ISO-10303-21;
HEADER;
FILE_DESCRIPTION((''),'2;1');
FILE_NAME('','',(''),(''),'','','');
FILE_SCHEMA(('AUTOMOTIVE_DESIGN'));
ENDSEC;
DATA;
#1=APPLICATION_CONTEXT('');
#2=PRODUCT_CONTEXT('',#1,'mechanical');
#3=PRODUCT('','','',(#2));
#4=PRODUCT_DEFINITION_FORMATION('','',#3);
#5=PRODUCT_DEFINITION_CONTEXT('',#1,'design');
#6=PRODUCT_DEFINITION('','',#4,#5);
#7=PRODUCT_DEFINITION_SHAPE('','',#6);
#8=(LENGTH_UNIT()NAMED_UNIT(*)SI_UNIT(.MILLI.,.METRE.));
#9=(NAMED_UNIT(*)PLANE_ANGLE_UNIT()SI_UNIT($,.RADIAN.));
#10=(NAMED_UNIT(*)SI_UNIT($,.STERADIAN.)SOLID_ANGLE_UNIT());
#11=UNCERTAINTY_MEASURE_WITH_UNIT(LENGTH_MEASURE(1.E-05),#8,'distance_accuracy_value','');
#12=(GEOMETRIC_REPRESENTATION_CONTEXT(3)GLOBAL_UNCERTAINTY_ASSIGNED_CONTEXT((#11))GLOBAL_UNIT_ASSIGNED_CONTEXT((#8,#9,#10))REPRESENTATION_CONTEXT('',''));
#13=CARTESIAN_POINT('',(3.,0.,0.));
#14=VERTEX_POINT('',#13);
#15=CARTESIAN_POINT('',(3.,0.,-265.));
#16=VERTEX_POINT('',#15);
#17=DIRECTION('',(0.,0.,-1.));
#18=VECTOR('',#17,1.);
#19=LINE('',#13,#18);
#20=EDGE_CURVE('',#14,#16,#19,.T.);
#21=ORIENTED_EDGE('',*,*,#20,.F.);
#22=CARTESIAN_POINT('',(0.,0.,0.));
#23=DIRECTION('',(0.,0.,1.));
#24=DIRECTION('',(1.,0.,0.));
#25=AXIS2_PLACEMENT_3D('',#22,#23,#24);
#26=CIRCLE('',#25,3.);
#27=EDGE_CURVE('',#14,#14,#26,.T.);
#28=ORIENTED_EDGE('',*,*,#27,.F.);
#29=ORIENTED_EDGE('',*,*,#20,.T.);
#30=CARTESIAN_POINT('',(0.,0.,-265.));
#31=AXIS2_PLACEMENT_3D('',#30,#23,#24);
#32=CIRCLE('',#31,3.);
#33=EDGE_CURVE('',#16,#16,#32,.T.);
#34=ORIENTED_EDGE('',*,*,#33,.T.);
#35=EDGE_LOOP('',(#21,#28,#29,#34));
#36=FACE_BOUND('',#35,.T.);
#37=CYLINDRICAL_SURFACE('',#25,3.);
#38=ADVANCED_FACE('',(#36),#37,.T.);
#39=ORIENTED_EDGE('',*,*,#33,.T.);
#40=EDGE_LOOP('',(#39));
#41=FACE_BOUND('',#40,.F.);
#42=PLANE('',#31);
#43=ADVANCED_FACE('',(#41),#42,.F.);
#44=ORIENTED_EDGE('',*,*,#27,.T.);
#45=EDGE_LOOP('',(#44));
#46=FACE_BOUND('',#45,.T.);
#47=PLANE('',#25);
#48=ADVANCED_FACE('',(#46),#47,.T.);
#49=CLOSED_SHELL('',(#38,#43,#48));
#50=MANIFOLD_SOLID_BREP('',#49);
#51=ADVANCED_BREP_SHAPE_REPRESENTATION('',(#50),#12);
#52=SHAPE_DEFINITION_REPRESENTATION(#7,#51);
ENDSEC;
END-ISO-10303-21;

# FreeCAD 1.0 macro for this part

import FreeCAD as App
import Part
import Sketcher

V = App.Vector
Q = App.Units.Quantity

doc = App.newDocument("Part")
params = doc.addObject("Spreadsheet::Sheet", "Params")
for row, (alias, value) in enumerate([
    ("sketch1_diameter", "6 mm"),
    ("pad1_length", "265 mm"),
], start=1):
    params.set(f"A{row}", alias)
    params.set(f"B{row}", "=" + value)
    params.setAlias(f"B{row}", alias)

body = doc.addObject("PartDesign::Body", "Body")

# Sketch on XY plane
sketch1 = body.newObject("Sketcher::SketchObject", "Sketch")
sketch1.AttachmentSupport = (doc.getObject("XY_Plane"), [""])
sketch1.MapMode = "FlatFace"
sketch1.addGeometry(Part.Circle(V(0, 0, 0), V(0, 0, 1), 3), False)
sketch1.addConstraint([
    Sketcher.Constraint("Coincident", 0, 3, -1, 1),
    Sketcher.Constraint("Diameter", 0, Q("6 mm")),
])
sketch1.setExpression("Constraints[1]", "Params.sketch1_diameter")
pad1 = body.newObject("PartDesign::Pad", "Pad")
pad1.Profile = sketch1
pad1.setExpression("Length", "Params.pad1_length")
pad1.Reversed = True

doc.recompute()
